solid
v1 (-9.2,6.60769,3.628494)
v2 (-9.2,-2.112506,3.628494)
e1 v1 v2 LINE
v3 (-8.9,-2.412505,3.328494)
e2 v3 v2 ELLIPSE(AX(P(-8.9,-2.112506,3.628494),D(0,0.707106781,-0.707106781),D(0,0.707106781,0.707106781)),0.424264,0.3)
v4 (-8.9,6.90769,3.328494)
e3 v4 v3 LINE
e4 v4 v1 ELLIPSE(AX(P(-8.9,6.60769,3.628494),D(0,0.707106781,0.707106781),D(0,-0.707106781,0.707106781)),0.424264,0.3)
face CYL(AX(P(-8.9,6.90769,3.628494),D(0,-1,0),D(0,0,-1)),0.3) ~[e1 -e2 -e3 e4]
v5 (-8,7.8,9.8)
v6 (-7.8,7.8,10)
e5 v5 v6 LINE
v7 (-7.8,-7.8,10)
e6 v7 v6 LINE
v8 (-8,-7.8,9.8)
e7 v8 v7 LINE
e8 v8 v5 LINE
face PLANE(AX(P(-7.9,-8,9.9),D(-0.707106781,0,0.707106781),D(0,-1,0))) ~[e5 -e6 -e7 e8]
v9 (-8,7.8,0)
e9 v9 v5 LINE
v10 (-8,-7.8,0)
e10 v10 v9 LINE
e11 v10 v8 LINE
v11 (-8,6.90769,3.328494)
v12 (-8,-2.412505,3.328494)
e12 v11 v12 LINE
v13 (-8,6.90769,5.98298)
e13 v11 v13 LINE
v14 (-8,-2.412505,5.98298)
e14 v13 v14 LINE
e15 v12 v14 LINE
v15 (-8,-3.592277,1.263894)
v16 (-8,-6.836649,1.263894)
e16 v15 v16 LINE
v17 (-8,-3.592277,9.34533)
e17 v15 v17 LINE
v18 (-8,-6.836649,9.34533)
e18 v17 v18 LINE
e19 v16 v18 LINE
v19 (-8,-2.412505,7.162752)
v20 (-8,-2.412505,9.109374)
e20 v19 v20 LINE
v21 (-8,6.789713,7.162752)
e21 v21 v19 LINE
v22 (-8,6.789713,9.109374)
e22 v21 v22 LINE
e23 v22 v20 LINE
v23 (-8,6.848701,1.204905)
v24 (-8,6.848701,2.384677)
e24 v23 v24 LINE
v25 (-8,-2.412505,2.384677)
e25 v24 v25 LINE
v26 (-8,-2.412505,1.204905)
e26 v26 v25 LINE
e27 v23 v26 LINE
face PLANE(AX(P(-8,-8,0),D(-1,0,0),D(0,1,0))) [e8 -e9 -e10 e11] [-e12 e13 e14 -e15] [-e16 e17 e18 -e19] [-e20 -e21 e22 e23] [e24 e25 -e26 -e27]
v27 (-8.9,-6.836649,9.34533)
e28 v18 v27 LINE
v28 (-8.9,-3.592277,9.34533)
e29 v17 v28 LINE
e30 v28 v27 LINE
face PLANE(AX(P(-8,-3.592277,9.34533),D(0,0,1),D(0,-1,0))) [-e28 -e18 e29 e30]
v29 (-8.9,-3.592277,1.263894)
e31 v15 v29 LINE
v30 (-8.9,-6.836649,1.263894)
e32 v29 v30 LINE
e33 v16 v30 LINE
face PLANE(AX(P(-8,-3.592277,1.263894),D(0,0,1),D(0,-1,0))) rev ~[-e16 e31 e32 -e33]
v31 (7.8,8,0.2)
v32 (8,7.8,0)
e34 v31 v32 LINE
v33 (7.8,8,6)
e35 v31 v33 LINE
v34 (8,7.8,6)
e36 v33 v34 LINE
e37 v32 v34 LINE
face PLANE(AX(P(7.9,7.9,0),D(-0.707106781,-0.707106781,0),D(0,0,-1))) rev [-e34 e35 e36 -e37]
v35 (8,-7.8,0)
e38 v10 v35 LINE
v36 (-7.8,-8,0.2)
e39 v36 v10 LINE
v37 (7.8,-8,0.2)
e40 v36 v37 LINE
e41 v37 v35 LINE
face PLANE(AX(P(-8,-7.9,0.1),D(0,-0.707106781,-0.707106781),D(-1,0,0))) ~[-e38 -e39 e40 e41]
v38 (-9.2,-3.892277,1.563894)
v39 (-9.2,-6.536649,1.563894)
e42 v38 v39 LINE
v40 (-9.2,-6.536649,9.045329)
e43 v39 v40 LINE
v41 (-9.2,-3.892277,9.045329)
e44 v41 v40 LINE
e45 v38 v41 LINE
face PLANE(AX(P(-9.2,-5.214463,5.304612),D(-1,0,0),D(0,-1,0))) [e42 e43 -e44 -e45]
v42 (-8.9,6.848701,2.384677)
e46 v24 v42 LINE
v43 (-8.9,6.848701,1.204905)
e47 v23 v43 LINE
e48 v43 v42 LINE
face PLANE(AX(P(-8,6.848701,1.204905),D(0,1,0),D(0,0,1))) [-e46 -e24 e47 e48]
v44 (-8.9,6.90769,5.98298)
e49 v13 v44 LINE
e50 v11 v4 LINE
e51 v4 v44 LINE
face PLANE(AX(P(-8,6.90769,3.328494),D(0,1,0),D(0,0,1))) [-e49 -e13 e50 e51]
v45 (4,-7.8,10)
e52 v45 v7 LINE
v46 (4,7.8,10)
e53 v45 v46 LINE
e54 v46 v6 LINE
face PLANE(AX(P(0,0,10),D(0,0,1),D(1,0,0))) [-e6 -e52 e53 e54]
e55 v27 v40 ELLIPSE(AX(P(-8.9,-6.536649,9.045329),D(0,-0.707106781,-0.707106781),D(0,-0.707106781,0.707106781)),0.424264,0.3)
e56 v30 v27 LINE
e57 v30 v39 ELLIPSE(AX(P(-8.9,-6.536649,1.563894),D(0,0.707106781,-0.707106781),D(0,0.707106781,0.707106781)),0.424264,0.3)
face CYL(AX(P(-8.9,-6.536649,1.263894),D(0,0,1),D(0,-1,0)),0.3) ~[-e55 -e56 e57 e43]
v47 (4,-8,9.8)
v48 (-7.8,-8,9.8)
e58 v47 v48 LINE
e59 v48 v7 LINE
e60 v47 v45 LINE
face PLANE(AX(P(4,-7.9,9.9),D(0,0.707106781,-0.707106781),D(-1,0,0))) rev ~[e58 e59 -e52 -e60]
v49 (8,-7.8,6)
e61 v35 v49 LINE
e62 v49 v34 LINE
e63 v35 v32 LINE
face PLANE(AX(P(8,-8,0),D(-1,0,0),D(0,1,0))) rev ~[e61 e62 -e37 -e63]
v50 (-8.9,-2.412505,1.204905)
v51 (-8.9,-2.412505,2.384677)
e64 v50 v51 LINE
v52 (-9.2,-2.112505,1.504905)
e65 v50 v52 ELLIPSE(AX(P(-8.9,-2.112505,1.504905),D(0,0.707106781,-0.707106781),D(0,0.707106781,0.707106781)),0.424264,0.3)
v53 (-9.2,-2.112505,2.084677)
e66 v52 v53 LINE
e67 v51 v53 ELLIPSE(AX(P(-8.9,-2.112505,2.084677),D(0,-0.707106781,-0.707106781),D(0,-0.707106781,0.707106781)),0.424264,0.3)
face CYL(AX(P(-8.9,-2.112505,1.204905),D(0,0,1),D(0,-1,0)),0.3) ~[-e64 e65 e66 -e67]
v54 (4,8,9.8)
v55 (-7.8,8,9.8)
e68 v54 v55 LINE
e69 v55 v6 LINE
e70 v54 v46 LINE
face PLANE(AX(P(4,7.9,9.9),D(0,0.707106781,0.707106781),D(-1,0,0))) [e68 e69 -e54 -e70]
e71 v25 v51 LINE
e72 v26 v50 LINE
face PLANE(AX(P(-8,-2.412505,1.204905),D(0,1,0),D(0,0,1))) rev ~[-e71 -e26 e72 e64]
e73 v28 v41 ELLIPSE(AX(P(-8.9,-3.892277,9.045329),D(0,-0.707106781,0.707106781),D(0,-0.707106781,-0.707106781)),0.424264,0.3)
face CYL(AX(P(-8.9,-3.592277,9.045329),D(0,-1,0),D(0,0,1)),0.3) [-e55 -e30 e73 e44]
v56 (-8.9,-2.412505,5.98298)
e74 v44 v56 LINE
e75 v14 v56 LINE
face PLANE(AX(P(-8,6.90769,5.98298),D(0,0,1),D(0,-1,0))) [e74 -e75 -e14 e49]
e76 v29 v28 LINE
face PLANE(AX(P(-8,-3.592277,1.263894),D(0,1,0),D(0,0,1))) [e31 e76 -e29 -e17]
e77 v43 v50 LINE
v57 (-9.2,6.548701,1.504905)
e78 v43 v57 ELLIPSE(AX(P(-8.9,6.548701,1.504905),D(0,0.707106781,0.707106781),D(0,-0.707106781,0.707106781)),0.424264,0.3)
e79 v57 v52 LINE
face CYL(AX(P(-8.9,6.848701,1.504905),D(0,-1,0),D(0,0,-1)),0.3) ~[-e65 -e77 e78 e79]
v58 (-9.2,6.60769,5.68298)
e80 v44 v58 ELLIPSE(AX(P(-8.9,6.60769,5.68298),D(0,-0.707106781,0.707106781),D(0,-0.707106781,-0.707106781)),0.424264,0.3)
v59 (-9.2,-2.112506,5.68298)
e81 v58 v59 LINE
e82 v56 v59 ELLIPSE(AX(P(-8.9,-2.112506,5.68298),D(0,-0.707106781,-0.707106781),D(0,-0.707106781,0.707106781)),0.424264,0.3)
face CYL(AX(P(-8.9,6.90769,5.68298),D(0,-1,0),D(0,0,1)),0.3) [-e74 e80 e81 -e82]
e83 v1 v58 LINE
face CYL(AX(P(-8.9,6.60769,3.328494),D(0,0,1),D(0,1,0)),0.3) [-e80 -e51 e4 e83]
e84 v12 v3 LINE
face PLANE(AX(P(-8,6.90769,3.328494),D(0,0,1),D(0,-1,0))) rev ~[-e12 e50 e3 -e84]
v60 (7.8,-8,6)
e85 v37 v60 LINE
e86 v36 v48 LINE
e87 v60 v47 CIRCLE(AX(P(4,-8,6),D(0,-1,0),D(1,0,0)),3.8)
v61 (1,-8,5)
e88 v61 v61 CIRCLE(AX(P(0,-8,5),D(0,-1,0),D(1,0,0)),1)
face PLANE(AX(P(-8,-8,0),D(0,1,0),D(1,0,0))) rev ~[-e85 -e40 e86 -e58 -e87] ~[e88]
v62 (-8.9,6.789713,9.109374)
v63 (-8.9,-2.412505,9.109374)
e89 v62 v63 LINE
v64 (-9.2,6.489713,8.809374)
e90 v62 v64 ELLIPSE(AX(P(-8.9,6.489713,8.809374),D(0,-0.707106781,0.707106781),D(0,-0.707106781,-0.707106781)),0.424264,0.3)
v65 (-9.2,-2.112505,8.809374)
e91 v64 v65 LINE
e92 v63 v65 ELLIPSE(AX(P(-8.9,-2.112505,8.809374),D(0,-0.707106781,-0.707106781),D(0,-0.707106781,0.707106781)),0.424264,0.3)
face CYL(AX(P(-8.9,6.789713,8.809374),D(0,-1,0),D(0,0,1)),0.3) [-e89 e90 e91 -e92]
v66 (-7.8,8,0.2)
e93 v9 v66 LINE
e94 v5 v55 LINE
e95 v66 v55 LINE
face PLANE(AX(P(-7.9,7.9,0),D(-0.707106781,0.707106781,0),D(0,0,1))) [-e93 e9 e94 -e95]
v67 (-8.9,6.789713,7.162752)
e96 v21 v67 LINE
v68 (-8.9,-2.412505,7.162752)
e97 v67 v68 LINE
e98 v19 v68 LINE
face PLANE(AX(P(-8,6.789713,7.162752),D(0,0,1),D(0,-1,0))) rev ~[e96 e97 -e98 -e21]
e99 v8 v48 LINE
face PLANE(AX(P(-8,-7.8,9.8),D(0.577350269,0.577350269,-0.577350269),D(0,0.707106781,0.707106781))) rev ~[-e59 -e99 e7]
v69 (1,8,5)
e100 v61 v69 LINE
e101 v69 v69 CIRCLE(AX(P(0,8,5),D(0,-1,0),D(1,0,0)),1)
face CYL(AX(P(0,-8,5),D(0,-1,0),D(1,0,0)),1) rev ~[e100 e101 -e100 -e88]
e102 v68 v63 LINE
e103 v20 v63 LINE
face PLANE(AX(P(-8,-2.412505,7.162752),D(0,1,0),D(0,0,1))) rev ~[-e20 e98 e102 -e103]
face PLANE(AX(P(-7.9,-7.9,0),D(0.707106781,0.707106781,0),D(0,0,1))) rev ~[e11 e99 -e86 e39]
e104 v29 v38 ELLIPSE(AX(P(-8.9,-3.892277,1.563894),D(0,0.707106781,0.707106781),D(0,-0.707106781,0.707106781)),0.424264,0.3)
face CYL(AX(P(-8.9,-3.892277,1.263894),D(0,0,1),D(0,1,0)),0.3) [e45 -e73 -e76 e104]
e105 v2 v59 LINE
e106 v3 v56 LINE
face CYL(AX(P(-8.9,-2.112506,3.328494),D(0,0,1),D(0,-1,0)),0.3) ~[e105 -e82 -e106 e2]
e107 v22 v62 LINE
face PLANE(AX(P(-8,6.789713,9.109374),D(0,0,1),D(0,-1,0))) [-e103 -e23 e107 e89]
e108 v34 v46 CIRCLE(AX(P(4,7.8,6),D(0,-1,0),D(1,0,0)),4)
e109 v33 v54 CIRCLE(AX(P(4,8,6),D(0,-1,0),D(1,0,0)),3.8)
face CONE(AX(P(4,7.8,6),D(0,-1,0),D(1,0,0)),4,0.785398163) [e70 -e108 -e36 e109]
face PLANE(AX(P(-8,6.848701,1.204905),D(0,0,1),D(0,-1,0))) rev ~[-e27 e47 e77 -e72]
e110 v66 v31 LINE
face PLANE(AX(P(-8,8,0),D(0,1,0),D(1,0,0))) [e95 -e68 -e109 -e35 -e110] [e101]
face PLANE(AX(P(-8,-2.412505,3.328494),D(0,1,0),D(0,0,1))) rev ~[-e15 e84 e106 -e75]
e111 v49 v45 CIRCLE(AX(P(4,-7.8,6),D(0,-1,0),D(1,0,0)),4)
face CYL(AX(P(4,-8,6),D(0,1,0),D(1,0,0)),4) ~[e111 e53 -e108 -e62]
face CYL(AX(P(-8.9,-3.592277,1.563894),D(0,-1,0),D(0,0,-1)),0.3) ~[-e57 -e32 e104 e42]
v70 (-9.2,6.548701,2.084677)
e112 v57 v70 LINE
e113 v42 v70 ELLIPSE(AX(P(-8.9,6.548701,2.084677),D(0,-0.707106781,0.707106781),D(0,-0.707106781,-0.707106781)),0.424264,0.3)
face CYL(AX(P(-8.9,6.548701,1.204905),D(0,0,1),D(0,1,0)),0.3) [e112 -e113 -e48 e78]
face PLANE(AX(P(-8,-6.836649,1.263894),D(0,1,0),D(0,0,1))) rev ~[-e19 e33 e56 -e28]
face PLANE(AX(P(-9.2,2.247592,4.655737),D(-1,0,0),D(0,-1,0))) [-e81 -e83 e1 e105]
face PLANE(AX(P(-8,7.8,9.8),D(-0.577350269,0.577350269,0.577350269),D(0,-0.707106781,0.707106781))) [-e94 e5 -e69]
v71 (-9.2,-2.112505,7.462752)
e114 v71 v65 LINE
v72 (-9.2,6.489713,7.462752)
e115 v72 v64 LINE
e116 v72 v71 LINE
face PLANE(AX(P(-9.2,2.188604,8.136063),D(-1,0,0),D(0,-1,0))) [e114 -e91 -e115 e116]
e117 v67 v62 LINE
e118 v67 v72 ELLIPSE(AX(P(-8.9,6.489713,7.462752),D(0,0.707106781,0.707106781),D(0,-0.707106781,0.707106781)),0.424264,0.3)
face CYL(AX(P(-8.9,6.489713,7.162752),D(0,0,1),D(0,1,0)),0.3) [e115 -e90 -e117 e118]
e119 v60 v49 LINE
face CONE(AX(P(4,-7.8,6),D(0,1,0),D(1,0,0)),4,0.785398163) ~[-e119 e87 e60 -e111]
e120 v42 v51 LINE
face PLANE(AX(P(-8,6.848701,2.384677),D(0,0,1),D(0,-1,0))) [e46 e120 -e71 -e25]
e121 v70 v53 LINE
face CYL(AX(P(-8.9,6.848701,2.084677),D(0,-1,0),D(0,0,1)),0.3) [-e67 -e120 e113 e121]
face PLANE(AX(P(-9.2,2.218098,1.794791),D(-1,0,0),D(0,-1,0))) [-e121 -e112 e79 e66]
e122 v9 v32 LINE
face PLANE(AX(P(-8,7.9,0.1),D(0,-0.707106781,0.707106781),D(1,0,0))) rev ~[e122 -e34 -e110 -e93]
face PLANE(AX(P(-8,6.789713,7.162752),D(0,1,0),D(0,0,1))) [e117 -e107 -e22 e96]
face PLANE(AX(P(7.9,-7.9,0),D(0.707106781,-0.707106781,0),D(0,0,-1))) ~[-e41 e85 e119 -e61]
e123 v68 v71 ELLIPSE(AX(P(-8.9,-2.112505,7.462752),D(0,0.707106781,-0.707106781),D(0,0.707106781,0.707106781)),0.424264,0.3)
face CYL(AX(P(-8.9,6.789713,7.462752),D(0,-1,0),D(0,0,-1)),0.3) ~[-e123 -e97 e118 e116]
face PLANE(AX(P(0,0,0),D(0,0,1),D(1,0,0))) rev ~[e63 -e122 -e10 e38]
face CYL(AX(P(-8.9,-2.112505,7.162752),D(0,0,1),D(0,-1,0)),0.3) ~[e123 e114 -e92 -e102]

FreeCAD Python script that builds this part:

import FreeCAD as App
import Part
import Sketcher

V = App.Vector
Q = App.Units.Quantity


def edges_at(feature, points):
    """Names of the edges that pass closest to the given points."""
    edges = feature.Shape.Edges
    near = lambda p: min(range(len(edges)), key=lambda i: edges[i].distToShape(Part.Vertex(*p))[0])
    return sorted({f"Edge{near(p) + 1}" for p in points})


def add_polygon(sketch, points):
    """Adds a closed chain of lines whose ends are joined by coincident constraints."""
    first, n = sketch.GeometryCount, len(points)
    for a, b in zip(points, points[1:] + points[:1]):
        sketch.addGeometry(Part.LineSegment(App.Vector(*a, 0), App.Vector(*b, 0)), False)
    for i in range(n):
        sketch.addConstraint(Sketcher.Constraint("Coincident", first + i, 2, first + (i + 1) % n, 1))

doc = App.newDocument("Part")
params = doc.addObject("Spreadsheet::Sheet", "Params")
for row, (alias, value) in enumerate([
    ("sketch1_width", "16 mm"),
    ("pad1_length", "10 mm"),
    ("fillet_radius", "4 mm"),
    ("pad2_length", "1.2 mm"),
    ("fillet2_radius", "0.3 mm"),
    ("chamfer_size", "0.2 mm"),
    ("sketch3_diameter", "2 mm"),
], start=1):
    params.set(f"A{row}", alias)
    params.set(f"B{row}", "=" + value)
    params.setAlias(f"B{row}", alias)

body = doc.addObject("PartDesign::Body", "Body")

# Sketch on XY plane
sketch1 = body.newObject("Sketcher::SketchObject", "Sketch")
sketch1.AttachmentSupport = (doc.getObject("XY_Plane"), [""])
sketch1.MapMode = "FlatFace"
add_polygon(sketch1, [(-8, 8), (-8, -8), (8, -8), (8, 8)])  # lines 0-3
sketch1.addConstraint([
    Sketcher.Constraint("Vertical", 0),
    Sketcher.Constraint("Horizontal", 1),
    Sketcher.Constraint("Vertical", 2),
    Sketcher.Constraint("Horizontal", 3),
    Sketcher.Constraint("Symmetric", 0, 2, 2, 2, -1, 1),
    Sketcher.Constraint("Equal", 3, 0),
    Sketcher.Constraint("DistanceX", 1, 1, 1, 2, Q("16 mm")),
])
sketch1.setExpression("Constraints[10]", "Params.sketch1_width")
pad1 = body.newObject("PartDesign::Pad", "Pad")
pad1.Profile = sketch1
pad1.setExpression("Length", "Params.pad1_length")
doc.recompute()

fillet = body.newObject("PartDesign::Fillet", "Fillet")
fillet.Base = (pad1, edges_at(pad1, [(8, 0, 10)]))
fillet.setExpression("Radius", "Params.fillet_radius")

# Sketch on YZ plane
sketch2 = body.newObject("Sketcher::SketchObject", "Sketch001")
sketch2.AttachmentSupport = (doc.getObject("YZ_Plane"), [""])
sketch2.MapMode = "FlatFace"
sketch2.AttachmentOffset = App.Placement(V(0, 0, -8), App.Rotation())
add_polygon(sketch2, [(6.8, 9.1), (6.8, 7.2), (-2.4, 7.2), (-2.4, 9.1)])  # lines 0-3
add_polygon(sketch2, [(6.9, 6), (6.9, 3.3), (-2.4, 3.3), (-2.4, 6)])  # lines 4-7
add_polygon(sketch2, [(6.8, 2.4), (6.8, 1.2), (-2.4, 1.2), (-2.4, 2.4)])  # lines 8-11
add_polygon(sketch2, [(-3.6, 9.3), (-3.6, 1.3), (-6.8, 1.3), (-6.8, 9.3)])  # lines 12-15
sketch2.addConstraint([
    Sketcher.Constraint("Vertical", 0),
    Sketcher.Constraint("Horizontal", 1),
    Sketcher.Constraint("Vertical", 2),
    Sketcher.Constraint("Horizontal", 3),
    Sketcher.Constraint("Vertical", 4),
    Sketcher.Constraint("Horizontal", 5),
    Sketcher.Constraint("Vertical", 6),
    Sketcher.Constraint("Horizontal", 7),
    Sketcher.Constraint("Vertical", 8),
    Sketcher.Constraint("Horizontal", 9),
    Sketcher.Constraint("Vertical", 10),
    Sketcher.Constraint("Horizontal", 11),
    Sketcher.Constraint("Vertical", 12),
    Sketcher.Constraint("Horizontal", 13),
    Sketcher.Constraint("Vertical", 14),
    Sketcher.Constraint("Horizontal", 15),
    Sketcher.Constraint("Vertical", 2, 2, 5, 2),
    Sketcher.Constraint("Vertical", 6, 2, 9, 2),
    Sketcher.Constraint("DistanceX", -1, 1, 8, 2, Q("6.848701 mm")),
    Sketcher.Constraint("DistanceY", 12, 2, 5, 2, Q("2.064599 mm")),
    Sketcher.Constraint("DistanceX", 1, 2, 1, 1, Q("9.202218 mm")),
    Sketcher.Constraint("DistanceX", 5, 2, 5, 1, Q("9.320195 mm")),
    Sketcher.Constraint("DistanceX", 9, 2, 9, 1, Q("9.261206 mm")),
    Sketcher.Constraint("DistanceX", 13, 2, 13, 1, Q("3.244372 mm")),
    Sketcher.Constraint("DistanceY", 0, 2, 0, 1, Q("1.946622 mm")),
    Sketcher.Constraint("DistanceY", 4, 2, 4, 1, Q("2.654486 mm")),
    Sketcher.Constraint("DistanceY", 8, 2, 8, 1, Q("1.179772 mm")),
    Sketcher.Constraint("DistanceY", 12, 2, 12, 1, Q("8.081435 mm")),
    Sketcher.Constraint("DistanceY", -1, 1, 6, 2, Q("5.98298 mm")),
    Sketcher.Constraint("DistanceX", 13, 2, -1, 1, Q("6.836649 mm")),
    Sketcher.Constraint("DistanceY", 4, 2, 0, 2, Q("3.834258 mm")),
    Sketcher.Constraint("DistanceY", 8, 2, 4, 2, Q("2.123589 mm")),
])
pad2 = body.newObject("PartDesign::Pad", "Pad001")
pad2.Profile = sketch2
pad2.setExpression("Length", "Params.pad2_length")
pad2.Reversed = True
doc.recompute()

fillet2 = body.newObject("PartDesign::Fillet", "Fillet001")
fillet2.Base = (pad2, edges_at(pad2, [
    (-9.2, 2.189, 9.109),
    (-9.2, -2.413, 8.136),
    (-9.2, 2.189, 7.163),
    (-9.2, 2.248, 5.983),
    (-9.2, -2.413, 4.656),
    (-9.2, 2.248, 3.328),
    (-9.2, 2.218, 2.385),
    (-9.2, -2.413, 1.795),
    (-9.2, 2.218, 1.205),
    (-9.2, -5.214, 9.345),
    (-9.2, -6.837, 5.305),
    (-9.2, -3.592, 5.305),
    (-9.2, -5.214, 1.264),
    (-9.2, 6.79, 8.136),
    (-9.2, 6.908, 4.656),
    (-9.2, 6.849, 1.795),
]))
fillet2.setExpression("Radius", "Params.fillet2_radius")
doc.recompute()

chamfer = body.newObject("PartDesign::Chamfer", "Chamfer")
chamfer.Base = (fillet2, edges_at(fillet2, [
    (8, -8, 3),
    (6.828, -8, 8.828),
    (0, -8, 0),
    (-2, -8, 10),
    (-8, -8, 5),
    (8, 8, 3),
    (6.828, 8, 8.828),
    (0, 8, 0),
    (-2, 8, 10),
    (-8, 8, 5),
    (-8, 0, 10),
]))
chamfer.setExpression("Size", "Params.chamfer_size")

# Sketch on XZ plane
sketch3 = body.newObject("Sketcher::SketchObject", "Sketch002")
sketch3.AttachmentSupport = (doc.getObject("XZ_Plane"), [""])
sketch3.MapMode = "FlatFace"
sketch3.AttachmentOffset = App.Placement(V(0, 0, 8), App.Rotation())
sketch3.addGeometry(Part.Circle(V(0, 5, 0), V(0, 0, 1), 1), False)
sketch3.addConstraint([
    Sketcher.Constraint("PointOnObject", 0, 3, -2),
    Sketcher.Constraint("Diameter", 0, Q("2 mm")),
    Sketcher.Constraint("DistanceY", -1, 1, 0, 3, Q("5 mm")),
])
sketch3.setExpression("Constraints[1]", "Params.sketch3_diameter")
pocket1 = body.newObject("PartDesign::Pocket", "Pocket")
pocket1.Profile = sketch3
pocket1.Type = "ThroughAll"

doc.recompute()
